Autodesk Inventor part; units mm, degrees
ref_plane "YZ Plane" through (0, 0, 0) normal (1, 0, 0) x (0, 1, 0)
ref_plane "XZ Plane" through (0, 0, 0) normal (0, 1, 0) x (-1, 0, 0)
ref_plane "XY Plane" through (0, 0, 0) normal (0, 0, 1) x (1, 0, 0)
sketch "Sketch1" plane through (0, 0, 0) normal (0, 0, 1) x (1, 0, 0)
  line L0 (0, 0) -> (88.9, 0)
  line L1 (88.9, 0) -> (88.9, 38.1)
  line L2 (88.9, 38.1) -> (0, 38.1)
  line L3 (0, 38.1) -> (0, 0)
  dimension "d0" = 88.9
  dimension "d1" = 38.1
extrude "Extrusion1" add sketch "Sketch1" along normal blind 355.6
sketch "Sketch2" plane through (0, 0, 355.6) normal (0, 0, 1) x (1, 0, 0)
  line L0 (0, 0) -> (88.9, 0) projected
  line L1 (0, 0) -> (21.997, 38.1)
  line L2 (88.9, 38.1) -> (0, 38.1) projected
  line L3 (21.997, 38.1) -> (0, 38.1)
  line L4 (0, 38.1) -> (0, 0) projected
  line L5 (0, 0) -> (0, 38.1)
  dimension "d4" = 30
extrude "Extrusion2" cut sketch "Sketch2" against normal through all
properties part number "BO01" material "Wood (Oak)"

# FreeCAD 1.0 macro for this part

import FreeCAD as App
import Part
import Sketcher
from FreeCAD import Vector
Q = App.Units.Quantity


def add_polygon(sketch, points):
    """Adds a closed chain of lines whose ends are joined by coincident constraints."""
    first, n = sketch.GeometryCount, len(points)
    for a, b in zip(points, points[1:] + points[:1]):
        sketch.addGeometry(Part.LineSegment(App.Vector(*a, 0), App.Vector(*b, 0)), False)
    for i in range(n):
        sketch.addConstraint(Sketcher.Constraint("Coincident", first + i, 2, first + (i + 1) % n, 1))

doc = App.newDocument("Part")
params = doc.addObject("Spreadsheet::Sheet", "Params")
for row, (alias, value) in enumerate([
    ("sketch1_width", "3.5 in"),
    ("sketch1_height", "1.5 in"),
    ("pad1_length", "14 in"),
    ("sketch2_height", "1.5 in"),
], start=1):
    params.set(f"A{row}", alias)
    params.set(f"B{row}", "=" + value)
    params.setAlias(f"B{row}", alias)

body = doc.addObject("PartDesign::Body", "Body")

# Sketch on XY plane
sketch1 = body.newObject("Sketcher::SketchObject", "Sketch")
sketch1.AttachmentSupport = (doc.getObject("XY_Plane"), [""])
sketch1.MapMode = "FlatFace"
add_polygon(sketch1, [(0, 38), (0, 0), (89, 0), (89, 38)])  # lines 0-3
sketch1.addConstraint([
    Sketcher.Constraint("Vertical", 0),
    Sketcher.Constraint("Horizontal", 1),
    Sketcher.Constraint("Vertical", 2),
    Sketcher.Constraint("Horizontal", 3),
    Sketcher.Constraint("Coincident", 0, 2, -1, 1),
    Sketcher.Constraint("DistanceX", 1, 1, 1, 2, Q("3.5 in")),
    Sketcher.Constraint("DistanceY", 0, 2, 0, 1, Q("1.5 in")),
])
sketch1.setExpression("Constraints[9]", "Params.sketch1_width")
sketch1.setExpression("Constraints[10]", "Params.sketch1_height")
pad1 = body.newObject("PartDesign::Pad", "Pad")
pad1.Profile = sketch1
pad1.setExpression("Length", "Params.pad1_length")

# Sketch on XY plane
sketch2 = body.newObject("Sketcher::SketchObject", "Sketch001")
sketch2.AttachmentSupport = (doc.getObject("XY_Plane"), [""])
sketch2.MapMode = "FlatFace"
sketch2.AttachmentOffset = App.Placement(Vector(0, 0, 14 * 25.4), App.Rotation())
add_polygon(sketch2, [(0, 38), (0, 0), (22, 38)])  # lines 0-2
sketch2.addConstraint([
    Sketcher.Constraint("Vertical", 0),
    Sketcher.Constraint("Horizontal", 2),
    Sketcher.Constraint("Coincident", 0, 2, -1, 1),
    Sketcher.Constraint("DistanceY", 0, 2, 0, 1, Q("1.5 in")),
    Sketcher.Constraint("Angle", 1, Q("60 deg")),
])
sketch2.setExpression("Constraints[6]", "Params.sketch2_height")
pocket1 = body.newObject("PartDesign::Pocket", "Pocket")
pocket1.Profile = sketch2
pocket1.Type = "ThroughAll"

doc.recompute()
